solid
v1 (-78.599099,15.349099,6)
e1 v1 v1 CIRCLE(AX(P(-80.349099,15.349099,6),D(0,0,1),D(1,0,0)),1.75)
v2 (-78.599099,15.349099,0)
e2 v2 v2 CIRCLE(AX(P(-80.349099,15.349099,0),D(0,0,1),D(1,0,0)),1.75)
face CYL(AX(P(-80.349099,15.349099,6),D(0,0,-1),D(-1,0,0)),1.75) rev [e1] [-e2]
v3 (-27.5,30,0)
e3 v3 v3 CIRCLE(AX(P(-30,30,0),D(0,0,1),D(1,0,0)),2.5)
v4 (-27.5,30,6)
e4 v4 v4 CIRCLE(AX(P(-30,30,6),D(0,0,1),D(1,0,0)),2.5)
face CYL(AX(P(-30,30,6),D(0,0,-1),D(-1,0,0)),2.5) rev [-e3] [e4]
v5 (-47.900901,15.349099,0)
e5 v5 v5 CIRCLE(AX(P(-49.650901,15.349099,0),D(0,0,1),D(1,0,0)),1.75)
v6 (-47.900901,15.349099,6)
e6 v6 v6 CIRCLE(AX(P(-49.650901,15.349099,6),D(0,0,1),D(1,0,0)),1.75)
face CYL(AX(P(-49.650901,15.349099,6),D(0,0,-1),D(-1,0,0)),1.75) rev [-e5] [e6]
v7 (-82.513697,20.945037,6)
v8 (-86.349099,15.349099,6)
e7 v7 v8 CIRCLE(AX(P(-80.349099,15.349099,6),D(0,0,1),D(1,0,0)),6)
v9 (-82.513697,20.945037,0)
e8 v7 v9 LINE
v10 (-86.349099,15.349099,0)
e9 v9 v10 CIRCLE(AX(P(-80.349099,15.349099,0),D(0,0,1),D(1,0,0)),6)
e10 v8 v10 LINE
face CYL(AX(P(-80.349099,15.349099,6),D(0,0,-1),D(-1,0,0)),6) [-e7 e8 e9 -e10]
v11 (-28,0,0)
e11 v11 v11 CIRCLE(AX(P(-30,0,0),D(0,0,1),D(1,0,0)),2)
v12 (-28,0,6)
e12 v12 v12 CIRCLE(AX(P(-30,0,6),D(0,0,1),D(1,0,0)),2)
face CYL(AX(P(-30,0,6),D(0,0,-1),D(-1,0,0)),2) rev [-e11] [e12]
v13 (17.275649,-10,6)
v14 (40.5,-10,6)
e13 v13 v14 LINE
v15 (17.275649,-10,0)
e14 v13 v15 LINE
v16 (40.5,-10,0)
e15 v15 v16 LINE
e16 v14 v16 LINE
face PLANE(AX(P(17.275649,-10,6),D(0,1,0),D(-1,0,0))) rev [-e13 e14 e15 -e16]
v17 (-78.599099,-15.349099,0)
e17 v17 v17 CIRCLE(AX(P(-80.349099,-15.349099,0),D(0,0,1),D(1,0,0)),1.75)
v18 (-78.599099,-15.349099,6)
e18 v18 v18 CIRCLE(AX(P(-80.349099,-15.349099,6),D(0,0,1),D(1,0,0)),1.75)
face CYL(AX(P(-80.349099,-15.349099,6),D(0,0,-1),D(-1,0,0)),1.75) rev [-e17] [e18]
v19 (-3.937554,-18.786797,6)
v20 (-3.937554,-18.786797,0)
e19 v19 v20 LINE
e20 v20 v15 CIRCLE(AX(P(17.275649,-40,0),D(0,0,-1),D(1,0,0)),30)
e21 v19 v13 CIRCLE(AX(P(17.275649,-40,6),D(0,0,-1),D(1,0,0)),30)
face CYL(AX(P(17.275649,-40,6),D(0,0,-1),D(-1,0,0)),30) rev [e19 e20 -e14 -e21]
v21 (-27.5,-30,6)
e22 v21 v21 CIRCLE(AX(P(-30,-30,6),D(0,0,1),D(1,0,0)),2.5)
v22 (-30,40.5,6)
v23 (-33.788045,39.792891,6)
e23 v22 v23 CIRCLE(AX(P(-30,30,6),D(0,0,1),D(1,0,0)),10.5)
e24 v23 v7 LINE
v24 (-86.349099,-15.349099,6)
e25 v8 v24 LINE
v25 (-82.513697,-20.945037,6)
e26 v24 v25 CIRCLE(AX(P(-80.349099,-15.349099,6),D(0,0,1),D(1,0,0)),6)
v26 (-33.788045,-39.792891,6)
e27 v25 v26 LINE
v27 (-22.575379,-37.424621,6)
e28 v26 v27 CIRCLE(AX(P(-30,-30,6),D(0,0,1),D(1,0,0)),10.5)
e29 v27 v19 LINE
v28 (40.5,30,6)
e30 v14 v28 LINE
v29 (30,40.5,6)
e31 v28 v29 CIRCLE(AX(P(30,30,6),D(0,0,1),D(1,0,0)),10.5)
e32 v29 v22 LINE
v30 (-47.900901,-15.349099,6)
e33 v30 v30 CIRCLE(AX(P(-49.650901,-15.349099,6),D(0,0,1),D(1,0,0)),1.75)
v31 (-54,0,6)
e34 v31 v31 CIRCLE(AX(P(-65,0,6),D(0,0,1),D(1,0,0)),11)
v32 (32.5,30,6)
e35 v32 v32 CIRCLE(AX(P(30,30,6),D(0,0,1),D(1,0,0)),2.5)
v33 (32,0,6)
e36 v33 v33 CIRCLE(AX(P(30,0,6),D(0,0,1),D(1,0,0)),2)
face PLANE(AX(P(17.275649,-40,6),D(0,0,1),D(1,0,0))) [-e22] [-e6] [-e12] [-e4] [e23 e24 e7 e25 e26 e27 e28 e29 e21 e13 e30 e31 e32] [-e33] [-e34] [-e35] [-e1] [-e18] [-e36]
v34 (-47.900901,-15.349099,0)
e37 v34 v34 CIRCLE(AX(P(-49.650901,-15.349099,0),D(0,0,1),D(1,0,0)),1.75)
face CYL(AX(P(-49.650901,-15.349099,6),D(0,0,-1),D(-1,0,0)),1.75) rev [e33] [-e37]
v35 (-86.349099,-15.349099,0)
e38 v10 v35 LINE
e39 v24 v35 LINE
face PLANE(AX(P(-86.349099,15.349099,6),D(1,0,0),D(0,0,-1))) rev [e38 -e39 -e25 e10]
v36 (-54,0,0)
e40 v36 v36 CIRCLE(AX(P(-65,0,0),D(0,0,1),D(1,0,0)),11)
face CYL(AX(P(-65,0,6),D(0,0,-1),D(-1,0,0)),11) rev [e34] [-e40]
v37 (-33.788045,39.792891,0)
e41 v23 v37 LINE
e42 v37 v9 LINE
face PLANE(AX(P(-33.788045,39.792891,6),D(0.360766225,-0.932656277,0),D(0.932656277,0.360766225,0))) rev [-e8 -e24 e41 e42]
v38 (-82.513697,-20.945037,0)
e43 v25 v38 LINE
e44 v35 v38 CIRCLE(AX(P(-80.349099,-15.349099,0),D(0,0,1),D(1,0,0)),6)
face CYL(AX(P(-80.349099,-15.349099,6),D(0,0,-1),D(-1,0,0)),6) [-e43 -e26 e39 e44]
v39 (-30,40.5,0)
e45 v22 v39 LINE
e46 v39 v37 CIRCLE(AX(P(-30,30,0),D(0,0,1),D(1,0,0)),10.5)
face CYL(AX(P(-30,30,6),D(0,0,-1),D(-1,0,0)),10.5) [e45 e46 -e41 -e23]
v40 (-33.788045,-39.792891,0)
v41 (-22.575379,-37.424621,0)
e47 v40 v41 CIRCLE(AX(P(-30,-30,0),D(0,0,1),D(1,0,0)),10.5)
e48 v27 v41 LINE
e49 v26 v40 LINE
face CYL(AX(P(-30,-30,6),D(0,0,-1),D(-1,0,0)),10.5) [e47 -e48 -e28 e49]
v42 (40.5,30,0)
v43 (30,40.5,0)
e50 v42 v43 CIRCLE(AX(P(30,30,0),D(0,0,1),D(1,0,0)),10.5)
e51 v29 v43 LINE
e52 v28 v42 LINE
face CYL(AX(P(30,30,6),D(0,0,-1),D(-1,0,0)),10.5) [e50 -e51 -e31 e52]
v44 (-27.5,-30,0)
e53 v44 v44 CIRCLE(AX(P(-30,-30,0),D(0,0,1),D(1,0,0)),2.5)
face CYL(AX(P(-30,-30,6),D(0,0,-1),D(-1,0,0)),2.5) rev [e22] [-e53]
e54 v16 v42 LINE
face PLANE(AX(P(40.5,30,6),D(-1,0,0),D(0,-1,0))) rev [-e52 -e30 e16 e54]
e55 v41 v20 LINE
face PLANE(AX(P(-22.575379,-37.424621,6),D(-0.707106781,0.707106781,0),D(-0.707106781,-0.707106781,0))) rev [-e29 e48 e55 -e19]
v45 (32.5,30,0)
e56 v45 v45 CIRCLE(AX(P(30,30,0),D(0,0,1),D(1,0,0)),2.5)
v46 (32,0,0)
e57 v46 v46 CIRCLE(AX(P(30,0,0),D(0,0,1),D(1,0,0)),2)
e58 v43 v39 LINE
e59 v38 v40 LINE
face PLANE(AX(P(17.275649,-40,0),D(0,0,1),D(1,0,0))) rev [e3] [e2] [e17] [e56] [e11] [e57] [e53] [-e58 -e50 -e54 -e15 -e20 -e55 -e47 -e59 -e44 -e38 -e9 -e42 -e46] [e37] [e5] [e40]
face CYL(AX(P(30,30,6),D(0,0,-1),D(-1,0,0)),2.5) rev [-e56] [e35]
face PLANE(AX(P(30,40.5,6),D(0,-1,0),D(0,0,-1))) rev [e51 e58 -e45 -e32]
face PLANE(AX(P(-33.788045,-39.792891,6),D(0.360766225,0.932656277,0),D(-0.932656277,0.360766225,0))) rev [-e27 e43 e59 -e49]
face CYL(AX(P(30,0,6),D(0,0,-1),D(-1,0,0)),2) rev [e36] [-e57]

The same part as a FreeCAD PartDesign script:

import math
import FreeCAD as App
import Part
import Sketcher
from FreeCAD import Vector
Q = App.Units.Quantity

doc = App.newDocument("Part")
body = doc.addObject("PartDesign::Body", "Body")

# Sketch on XY plane
sketch1 = body.newObject("Sketcher::SketchObject", "Sketch")
sketch1.AttachmentSupport = (doc.getObject("XY_Plane"), [""])
sketch1.MapMode = "FlatFace"
sketch1.addGeometry([
    Part.LineSegment(Vector(-22.6, -37.4, 0), Vector(-3.9, -18.8, 0)),  # 0
    Part.ArcOfCircle(Part.Circle(Vector(17.3, -40, 0), Vector(0, 0, 1), 30), math.radians(90), math.radians(135)),  # 1
    Part.LineSegment(Vector(17.3, -10, 0), Vector(40.5, -10, 0)),  # 2
    Part.LineSegment(Vector(40.5, -10, 0), Vector(40.5, 30, 0)),  # 3
    Part.ArcOfCircle(Part.Circle(Vector(30, 30, 0), Vector(0, 0, 1), 10.5), math.radians(0), math.radians(90)),  # 4
    Part.LineSegment(Vector(30, 40.5, 0), Vector(-30, 40.5, 0)),  # 5
    Part.ArcOfCircle(Part.Circle(Vector(-30, 30, 0), Vector(0, 0, 1), 10.5), math.radians(90), math.radians(111)),  # 6
    Part.LineSegment(Vector(-33.8, 39.8, 0), Vector(-82.5, 20.9, 0)),  # 7
    Part.ArcOfCircle(Part.Circle(Vector(-80.3, 15.3, 0), Vector(0, 0, 1), 6), math.radians(111), math.radians(180)),  # 8
    Part.LineSegment(Vector(-86.3, 15.3, 0), Vector(-86.3, -15.3, 0)),  # 9
    Part.ArcOfCircle(Part.Circle(Vector(-80.3, -15.3, 0), Vector(0, 0, 1), 6), math.radians(-180), math.radians(-111)),  # 10
    Part.LineSegment(Vector(-82.5, -20.9, 0), Vector(-33.8, -39.8, 0)),  # 11
    Part.ArcOfCircle(Part.Circle(Vector(-30, -30, 0), Vector(0, 0, 1), 10.5), math.radians(-111), math.radians(-45)),  # 12
    Part.Circle(Vector(-30, -30, 0), Vector(0, 0, 1), 2.5),  # 13
    Part.Circle(Vector(-80.3, -15.3, 0), Vector(0, 0, 1), 1.8),  # 14
    Part.Circle(Vector(-49.7, -15.3, 0), Vector(0, 0, 1), 1.8),  # 15
    Part.Circle(Vector(-65, 0, 0), Vector(0, 0, 1), 11),  # 16
    Part.Circle(Vector(-80.3, 15.3, 0), Vector(0, 0, 1), 1.8),  # 17
    Part.Circle(Vector(-30, 0, 0), Vector(0, 0, 1), 2),  # 18
    Part.Circle(Vector(-49.7, 15.3, 0), Vector(0, 0, 1), 1.8),  # 19
    Part.Circle(Vector(-30, 30, 0), Vector(0, 0, 1), 2.5),  # 20
    Part.Circle(Vector(30, 0, 0), Vector(0, 0, 1), 2),  # 21
    Part.Circle(Vector(30, 30, 0), Vector(0, 0, 1), 2.5),  # 22
], False)
sketch1.addConstraint([
    Sketcher.Constraint("Tangent", 0, 2, 1, 2),
    Sketcher.Constraint("Tangent", 1, 1, 2, 1),
    Sketcher.Constraint("Coincident", 2, 2, 3, 1),
    Sketcher.Constraint("Tangent", 3, 2, 4, 1),
    Sketcher.Constraint("Tangent", 4, 2, 5, 1),
    Sketcher.Constraint("Tangent", 5, 2, 6, 1),
    Sketcher.Constraint("Tangent", 6, 2, 7, 1),
    Sketcher.Constraint("Tangent", 7, 2, 8, 1),
    Sketcher.Constraint("Tangent", 8, 2, 9, 1),
    Sketcher.Constraint("Tangent", 9, 2, 10, 1),
    Sketcher.Constraint("Tangent", 10, 2, 11, 1),
    Sketcher.Constraint("Tangent", 11, 2, 12, 1),
    Sketcher.Constraint("Tangent", 12, 2, 0, 1),
    Sketcher.Constraint("Horizontal", 2),
    Sketcher.Constraint("Vertical", 3),
    Sketcher.Constraint("Horizontal", 5),
    Sketcher.Constraint("Vertical", 9),
    Sketcher.Constraint("Coincident", 13, 3, 12, 3),
    Sketcher.Constraint("Coincident", 14, 3, 10, 3),
    Sketcher.Constraint("Coincident", 17, 3, 8, 3),
    Sketcher.Constraint("Coincident", 20, 3, 6, 3),
    Sketcher.Constraint("Coincident", 22, 3, 4, 3),
    Sketcher.Constraint("Equal", 4, 6),
    Sketcher.Constraint("Equal", 8, 10),
    Sketcher.Constraint("Equal", 6, 12),
    Sketcher.Constraint("Equal", 14, 15),
    Sketcher.Constraint("Equal", 15, 17),
    Sketcher.Constraint("Equal", 17, 19),
    Sketcher.Constraint("Equal", 13, 20),
    Sketcher.Constraint("Equal", 18, 21),
    Sketcher.Constraint("Equal", 20, 22),
    Sketcher.Constraint("Symmetric", 4, 3, 12, 3, -1, 1),
    Sketcher.Constraint("Symmetric", 18, 3, 21, 3, -1, 1),
    Sketcher.Constraint("Symmetric", 15, 3, 19, 3, -1),
    Sketcher.Constraint("Symmetric", 7, 2, 10, 2, -1),
    Sketcher.Constraint("PointOnObject", 16, 3, -1),
    Sketcher.Constraint("PointOnObject", 18, 3, -1),
    Sketcher.Constraint("Horizontal", 14, 3, 15, 3),
    Sketcher.Constraint("Vertical", 13, 3, 18, 3),
    Sketcher.Constraint("Diameter", 13, 5.0),
    Sketcher.Constraint("Diameter", 16, 22.0),
    Sketcher.Constraint("Diameter", 18, 4.0),
    Sketcher.Constraint("Radius", 1, 30.0),
    Sketcher.Constraint("Radius", 8, 6.0),
    Sketcher.Constraint("Diameter", 14, 3.5),
    Sketcher.Constraint("Radius", 4, 10.5),
    Sketcher.Constraint("DistanceX", 5, 2, 5, 1, 60.0),
    Sketcher.Constraint("DistanceY", 3, 1, 3, 2, 40.0),
    Sketcher.Constraint("Angle", 0, Q("45 deg")),
    Sketcher.Constraint("DistanceY", 1, 3, -1, 1, 40.0),
    Sketcher.Constraint("DistanceX", 16, 3, -1, 1, 65.0),
    Sketcher.Constraint("DistanceY", 9, 2, 9, 1, 30.698199),
    Sketcher.Constraint("DistanceX", 8, 3, -1, 1, 80.349099),
    Sketcher.Constraint("DistanceX", 15, 3, -1, 1, 49.650901),
])
pad1 = body.newObject("PartDesign::Pad", "Pad")
pad1.Profile = sketch1
pad1.Length = 6

doc.recompute()
